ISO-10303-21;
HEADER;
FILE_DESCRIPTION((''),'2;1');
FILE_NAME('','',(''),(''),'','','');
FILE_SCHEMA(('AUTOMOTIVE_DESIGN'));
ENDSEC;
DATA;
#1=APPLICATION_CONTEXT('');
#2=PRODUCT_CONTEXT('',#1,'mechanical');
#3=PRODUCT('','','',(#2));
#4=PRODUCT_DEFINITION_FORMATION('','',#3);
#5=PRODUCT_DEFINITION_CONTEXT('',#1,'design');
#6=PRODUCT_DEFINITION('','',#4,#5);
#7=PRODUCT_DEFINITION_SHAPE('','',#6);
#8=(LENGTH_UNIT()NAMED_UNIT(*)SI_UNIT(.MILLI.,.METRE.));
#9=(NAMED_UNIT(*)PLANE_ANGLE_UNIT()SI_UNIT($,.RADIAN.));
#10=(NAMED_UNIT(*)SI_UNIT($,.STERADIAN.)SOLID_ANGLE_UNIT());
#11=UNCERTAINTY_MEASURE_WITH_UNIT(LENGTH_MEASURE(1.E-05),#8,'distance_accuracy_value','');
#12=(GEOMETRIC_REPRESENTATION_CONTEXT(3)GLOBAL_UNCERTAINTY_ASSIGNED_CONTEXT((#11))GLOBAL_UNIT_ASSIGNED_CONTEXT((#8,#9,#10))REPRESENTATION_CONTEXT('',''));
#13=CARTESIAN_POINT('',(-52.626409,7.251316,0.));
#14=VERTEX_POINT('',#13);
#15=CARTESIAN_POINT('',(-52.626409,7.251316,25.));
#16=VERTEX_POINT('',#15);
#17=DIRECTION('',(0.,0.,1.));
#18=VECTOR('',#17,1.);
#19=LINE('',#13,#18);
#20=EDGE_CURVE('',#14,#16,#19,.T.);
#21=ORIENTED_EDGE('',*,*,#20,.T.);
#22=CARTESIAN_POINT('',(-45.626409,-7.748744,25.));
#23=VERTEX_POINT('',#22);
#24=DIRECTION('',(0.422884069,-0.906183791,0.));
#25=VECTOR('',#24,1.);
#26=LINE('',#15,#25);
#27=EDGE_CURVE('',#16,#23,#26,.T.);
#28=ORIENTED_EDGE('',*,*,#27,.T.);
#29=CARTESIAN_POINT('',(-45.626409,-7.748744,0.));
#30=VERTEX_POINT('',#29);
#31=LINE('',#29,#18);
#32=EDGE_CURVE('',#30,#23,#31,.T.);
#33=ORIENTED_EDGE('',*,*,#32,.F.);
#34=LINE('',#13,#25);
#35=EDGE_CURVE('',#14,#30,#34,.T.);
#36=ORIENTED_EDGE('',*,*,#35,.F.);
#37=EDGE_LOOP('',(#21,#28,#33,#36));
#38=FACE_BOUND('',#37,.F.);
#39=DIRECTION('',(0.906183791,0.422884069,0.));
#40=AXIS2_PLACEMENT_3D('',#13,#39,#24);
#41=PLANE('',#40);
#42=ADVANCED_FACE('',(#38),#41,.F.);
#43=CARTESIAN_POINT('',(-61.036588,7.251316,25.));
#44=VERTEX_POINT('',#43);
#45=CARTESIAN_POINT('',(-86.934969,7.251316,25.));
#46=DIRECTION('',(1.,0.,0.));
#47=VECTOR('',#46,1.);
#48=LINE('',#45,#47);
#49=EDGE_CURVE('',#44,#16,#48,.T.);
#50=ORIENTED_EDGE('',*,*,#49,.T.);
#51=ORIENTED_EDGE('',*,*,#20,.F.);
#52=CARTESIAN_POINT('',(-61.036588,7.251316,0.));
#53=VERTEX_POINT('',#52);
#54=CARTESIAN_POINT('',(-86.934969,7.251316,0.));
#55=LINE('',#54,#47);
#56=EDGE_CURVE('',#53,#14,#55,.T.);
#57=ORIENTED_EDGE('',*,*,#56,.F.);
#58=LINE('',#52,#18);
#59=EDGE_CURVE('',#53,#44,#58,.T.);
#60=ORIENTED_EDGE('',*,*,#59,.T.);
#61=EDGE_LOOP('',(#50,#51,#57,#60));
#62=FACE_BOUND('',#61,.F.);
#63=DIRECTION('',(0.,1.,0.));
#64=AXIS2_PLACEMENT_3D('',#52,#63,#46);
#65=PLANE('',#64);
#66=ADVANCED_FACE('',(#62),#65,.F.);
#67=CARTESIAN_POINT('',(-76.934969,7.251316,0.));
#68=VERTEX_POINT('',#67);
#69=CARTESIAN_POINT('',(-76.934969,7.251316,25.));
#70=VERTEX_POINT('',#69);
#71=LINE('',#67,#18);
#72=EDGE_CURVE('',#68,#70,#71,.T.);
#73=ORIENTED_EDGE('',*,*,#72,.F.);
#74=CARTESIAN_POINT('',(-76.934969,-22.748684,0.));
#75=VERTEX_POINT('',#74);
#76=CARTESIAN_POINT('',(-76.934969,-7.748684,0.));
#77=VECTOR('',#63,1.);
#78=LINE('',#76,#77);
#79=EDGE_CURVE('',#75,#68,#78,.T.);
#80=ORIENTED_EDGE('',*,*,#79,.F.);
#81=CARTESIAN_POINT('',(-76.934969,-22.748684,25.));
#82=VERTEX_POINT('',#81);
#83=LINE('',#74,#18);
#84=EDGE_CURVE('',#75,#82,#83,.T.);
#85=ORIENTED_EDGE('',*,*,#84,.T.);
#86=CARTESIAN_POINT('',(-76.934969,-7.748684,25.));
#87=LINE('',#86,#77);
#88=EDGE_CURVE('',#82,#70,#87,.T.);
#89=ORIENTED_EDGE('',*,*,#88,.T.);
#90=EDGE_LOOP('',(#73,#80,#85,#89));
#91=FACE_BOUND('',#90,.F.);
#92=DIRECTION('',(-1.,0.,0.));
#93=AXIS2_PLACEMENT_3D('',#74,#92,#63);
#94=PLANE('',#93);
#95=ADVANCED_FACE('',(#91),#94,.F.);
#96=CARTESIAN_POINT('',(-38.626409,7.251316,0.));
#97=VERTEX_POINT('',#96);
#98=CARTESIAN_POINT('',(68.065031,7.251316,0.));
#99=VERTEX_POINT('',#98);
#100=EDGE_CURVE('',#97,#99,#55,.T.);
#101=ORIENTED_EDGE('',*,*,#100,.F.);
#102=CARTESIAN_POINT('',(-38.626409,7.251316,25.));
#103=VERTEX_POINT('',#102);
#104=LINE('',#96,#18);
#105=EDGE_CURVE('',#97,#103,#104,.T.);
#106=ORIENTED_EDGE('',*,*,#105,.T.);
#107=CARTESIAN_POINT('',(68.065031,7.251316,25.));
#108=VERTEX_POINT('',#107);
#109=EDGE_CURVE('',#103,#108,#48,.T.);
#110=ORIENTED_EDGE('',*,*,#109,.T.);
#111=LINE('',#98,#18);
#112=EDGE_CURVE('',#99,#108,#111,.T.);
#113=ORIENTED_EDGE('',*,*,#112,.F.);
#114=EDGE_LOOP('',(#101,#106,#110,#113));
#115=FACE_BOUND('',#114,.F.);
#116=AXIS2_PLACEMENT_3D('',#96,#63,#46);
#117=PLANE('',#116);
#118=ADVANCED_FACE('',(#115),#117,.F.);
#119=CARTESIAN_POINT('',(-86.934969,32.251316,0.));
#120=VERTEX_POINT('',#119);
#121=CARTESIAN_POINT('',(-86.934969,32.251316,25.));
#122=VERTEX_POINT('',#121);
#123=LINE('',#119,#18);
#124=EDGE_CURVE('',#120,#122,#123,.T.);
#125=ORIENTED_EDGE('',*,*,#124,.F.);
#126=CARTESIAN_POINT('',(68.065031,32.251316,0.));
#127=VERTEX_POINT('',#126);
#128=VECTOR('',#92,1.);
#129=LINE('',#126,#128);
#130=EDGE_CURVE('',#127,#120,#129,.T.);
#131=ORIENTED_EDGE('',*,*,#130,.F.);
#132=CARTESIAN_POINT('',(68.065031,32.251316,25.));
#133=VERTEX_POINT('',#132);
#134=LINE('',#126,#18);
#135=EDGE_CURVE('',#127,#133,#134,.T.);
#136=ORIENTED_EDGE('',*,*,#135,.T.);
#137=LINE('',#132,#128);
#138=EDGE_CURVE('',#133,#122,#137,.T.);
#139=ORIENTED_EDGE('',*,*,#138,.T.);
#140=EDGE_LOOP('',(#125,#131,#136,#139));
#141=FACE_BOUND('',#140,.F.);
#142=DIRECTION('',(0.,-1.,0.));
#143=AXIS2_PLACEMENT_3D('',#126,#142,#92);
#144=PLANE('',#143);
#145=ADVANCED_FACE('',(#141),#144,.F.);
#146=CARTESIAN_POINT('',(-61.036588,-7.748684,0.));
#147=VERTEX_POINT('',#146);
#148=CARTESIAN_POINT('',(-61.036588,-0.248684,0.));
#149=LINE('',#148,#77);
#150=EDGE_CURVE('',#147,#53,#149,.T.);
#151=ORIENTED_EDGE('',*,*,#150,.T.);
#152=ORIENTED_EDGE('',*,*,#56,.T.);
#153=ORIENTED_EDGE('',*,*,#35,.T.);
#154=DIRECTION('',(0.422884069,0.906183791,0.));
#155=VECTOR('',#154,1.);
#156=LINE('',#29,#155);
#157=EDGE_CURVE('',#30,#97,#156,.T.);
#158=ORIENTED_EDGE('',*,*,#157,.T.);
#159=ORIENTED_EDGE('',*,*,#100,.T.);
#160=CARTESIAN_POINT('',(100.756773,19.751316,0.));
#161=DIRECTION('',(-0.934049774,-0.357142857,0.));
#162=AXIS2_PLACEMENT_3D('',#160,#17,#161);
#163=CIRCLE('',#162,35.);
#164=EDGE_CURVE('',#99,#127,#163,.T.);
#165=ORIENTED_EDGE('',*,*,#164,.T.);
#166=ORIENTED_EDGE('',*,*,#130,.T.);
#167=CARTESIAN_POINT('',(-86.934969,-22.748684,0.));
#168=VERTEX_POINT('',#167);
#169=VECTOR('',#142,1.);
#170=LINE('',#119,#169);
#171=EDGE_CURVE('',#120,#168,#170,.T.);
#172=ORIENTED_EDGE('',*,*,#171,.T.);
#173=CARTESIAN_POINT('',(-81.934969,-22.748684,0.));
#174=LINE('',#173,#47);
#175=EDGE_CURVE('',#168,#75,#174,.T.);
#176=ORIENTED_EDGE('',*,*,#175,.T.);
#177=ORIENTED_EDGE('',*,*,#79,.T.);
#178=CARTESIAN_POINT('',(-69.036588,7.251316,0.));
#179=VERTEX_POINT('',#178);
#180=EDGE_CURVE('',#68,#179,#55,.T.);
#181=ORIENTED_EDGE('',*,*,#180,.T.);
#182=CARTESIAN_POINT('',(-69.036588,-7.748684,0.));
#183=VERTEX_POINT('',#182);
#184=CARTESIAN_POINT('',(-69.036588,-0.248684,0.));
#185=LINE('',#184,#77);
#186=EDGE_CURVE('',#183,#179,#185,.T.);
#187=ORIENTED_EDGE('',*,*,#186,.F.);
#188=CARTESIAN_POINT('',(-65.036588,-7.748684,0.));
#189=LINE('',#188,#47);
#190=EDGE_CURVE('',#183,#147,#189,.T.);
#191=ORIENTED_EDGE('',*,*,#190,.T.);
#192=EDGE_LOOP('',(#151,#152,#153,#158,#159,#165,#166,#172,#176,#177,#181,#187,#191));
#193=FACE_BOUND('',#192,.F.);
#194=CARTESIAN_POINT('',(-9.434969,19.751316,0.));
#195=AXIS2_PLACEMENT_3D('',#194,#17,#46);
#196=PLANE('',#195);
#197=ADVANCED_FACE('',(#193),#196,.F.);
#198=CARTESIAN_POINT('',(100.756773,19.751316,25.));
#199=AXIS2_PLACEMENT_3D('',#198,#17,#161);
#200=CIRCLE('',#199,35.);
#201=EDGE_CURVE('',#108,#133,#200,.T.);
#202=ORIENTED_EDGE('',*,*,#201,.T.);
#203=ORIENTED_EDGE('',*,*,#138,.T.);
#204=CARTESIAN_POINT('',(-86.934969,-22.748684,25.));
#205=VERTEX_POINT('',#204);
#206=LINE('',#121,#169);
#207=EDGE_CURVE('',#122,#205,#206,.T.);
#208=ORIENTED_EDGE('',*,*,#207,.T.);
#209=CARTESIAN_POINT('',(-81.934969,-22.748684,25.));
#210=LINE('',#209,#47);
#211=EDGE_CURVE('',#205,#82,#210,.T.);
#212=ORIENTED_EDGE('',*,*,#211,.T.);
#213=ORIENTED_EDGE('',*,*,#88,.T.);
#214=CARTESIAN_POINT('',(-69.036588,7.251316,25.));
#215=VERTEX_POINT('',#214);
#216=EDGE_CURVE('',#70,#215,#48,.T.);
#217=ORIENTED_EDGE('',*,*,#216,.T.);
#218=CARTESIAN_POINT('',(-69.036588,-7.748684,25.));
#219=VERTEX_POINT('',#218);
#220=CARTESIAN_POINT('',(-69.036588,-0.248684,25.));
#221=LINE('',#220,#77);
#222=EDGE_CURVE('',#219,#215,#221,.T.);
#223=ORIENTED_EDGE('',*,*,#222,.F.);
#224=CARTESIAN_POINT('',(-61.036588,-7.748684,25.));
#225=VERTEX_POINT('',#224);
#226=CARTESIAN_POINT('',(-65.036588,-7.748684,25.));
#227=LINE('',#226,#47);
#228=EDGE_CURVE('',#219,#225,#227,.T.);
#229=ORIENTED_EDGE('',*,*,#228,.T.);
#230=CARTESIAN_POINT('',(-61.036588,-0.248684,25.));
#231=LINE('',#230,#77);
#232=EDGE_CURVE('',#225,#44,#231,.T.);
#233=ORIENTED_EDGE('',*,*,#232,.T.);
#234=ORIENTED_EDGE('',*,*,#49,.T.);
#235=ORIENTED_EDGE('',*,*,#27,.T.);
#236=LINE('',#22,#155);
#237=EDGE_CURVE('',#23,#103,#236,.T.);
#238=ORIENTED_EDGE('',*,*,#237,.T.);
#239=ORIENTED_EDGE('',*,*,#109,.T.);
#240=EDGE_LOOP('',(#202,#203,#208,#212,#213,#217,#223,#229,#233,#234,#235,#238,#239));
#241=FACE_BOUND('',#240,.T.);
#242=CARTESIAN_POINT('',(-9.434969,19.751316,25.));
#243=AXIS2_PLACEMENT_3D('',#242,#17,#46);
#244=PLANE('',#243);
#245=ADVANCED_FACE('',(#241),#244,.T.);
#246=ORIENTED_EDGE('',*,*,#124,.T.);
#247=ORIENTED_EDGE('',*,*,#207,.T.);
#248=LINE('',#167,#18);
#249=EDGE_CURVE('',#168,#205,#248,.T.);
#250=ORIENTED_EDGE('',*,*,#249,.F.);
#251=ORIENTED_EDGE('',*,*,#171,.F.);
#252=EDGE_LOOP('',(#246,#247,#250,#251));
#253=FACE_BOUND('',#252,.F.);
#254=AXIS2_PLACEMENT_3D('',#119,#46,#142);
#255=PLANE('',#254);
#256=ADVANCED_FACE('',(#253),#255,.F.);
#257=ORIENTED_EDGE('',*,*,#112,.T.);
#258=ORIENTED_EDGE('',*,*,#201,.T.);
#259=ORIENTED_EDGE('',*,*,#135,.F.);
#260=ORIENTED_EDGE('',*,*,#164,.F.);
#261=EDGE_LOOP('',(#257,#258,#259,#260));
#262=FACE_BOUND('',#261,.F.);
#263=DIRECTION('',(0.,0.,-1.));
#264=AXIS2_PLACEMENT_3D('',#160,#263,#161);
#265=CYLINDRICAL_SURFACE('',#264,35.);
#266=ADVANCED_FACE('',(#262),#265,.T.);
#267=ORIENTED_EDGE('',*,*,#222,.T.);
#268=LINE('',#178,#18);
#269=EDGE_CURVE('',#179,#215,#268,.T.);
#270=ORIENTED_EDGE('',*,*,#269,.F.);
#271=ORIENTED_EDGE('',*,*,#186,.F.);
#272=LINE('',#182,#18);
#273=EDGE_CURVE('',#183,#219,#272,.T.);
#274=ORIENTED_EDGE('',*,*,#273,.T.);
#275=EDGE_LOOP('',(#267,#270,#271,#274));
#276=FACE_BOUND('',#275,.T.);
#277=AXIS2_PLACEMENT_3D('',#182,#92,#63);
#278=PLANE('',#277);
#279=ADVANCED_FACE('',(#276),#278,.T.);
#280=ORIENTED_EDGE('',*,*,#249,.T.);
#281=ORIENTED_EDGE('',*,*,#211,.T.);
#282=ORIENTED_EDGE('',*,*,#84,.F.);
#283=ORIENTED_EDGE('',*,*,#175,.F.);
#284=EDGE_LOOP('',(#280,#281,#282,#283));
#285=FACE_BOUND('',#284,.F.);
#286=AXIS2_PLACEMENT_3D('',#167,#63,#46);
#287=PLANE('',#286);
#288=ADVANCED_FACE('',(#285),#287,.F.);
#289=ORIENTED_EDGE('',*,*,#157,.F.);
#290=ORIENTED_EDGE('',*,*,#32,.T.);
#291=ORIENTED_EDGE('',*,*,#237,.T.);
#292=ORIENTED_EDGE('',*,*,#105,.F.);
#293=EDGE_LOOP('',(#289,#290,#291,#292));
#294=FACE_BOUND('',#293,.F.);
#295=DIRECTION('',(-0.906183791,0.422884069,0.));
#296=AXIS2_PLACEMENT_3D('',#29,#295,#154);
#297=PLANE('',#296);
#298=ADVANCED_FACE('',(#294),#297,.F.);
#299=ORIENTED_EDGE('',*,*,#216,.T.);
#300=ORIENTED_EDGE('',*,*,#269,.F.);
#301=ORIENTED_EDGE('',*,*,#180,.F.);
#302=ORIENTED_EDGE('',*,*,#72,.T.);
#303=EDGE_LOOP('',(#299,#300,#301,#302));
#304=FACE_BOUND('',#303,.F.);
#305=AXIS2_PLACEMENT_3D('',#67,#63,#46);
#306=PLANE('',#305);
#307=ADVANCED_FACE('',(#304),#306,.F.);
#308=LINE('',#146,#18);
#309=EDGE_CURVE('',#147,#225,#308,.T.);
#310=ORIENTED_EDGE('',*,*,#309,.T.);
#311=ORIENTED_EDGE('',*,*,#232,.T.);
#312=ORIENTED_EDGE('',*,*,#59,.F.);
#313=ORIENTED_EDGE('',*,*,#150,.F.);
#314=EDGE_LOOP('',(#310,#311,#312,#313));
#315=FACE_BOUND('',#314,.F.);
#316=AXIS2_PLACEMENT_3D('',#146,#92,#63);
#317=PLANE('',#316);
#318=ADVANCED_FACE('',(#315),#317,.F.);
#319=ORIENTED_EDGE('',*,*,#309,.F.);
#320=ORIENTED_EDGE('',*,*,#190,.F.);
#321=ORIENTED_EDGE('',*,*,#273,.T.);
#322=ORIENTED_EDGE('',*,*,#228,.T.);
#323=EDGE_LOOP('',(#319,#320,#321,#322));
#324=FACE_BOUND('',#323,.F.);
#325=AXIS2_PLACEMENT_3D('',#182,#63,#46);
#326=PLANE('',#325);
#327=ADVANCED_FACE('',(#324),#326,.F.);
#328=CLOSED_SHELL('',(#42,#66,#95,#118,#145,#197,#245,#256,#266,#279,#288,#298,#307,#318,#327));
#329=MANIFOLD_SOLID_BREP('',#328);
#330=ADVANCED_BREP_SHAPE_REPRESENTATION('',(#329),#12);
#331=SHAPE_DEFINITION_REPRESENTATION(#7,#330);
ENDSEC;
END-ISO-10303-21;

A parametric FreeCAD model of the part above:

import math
import FreeCAD as App
import Part
import Sketcher

V = App.Vector
Q = App.Units.Quantity

doc = App.newDocument("Part")
body = doc.addObject("PartDesign::Body", "Body")

sketch1 = body.newObject("Sketcher::SketchObject", "Sketch")
sketch1.AttachmentSupport = (doc.getObject("XY_Plane"), [""])
sketch1.MapMode = "FlatFace"
sketch1.addGeometry(Part.LineSegment(V(68, 32, 0), V(-87, 32, 0)), False)
sketch1.addGeometry(Part.LineSegment(V(-87, 32, 0), V(-87, -23, 0)), False)
sketch1.addGeometry(Part.LineSegment(V(-87, -23, 0), V(-77, -23, 0)), False)
sketch1.addGeometry(Part.LineSegment(V(-77, -23, 0), V(-77, 7, 0)), False)
sketch1.addGeometry(Part.LineSegment(V(-77, 7, 0), V(-69, 7, 0)), False)
sketch1.addGeometry(Part.LineSegment(V(-69, 7, 0), V(-69, -8, 0)), False)
sketch1.addGeometry(Part.LineSegment(V(-69, -8, 0), V(-61, -8, 0)), False)
sketch1.addGeometry(Part.LineSegment(V(-61, -8, 0), V(-61, 7, 0)), False)
sketch1.addGeometry(Part.LineSegment(V(-61, 7, 0), V(-53, 7, 0)), False)
sketch1.addGeometry(Part.LineSegment(V(-53, 7, 0), V(-46, -8, 0)), False)
sketch1.addGeometry(Part.LineSegment(V(-46, -8, 0), V(-39, 7, 0)), False)
sketch1.addGeometry(Part.LineSegment(V(-39, 7, 0), V(68, 7, 0)), False)
sketch1.addGeometry(Part.ArcOfCircle(Part.Circle(V(101, 20, 0), V(0, 0, 1), 35), math.radians(-159), math.radians(159)), False)
sketch1.addConstraint(Sketcher.Constraint("Coincident", 0, 2, 1, 1))
sketch1.addConstraint(Sketcher.Constraint("Coincident", 1, 2, 2, 1))
sketch1.addConstraint(Sketcher.Constraint("Coincident", 2, 2, 3, 1))
sketch1.addConstraint(Sketcher.Constraint("Coincident", 3, 2, 4, 1))
sketch1.addConstraint(Sketcher.Constraint("Coincident", 4, 2, 5, 1))
sketch1.addConstraint(Sketcher.Constraint("Coincident", 5, 2, 6, 1))
sketch1.addConstraint(Sketcher.Constraint("Coincident", 6, 2, 7, 1))
sketch1.addConstraint(Sketcher.Constraint("Coincident", 7, 2, 8, 1))
sketch1.addConstraint(Sketcher.Constraint("Coincident", 8, 2, 9, 1))
sketch1.addConstraint(Sketcher.Constraint("Coincident", 9, 2, 10, 1))
sketch1.addConstraint(Sketcher.Constraint("Coincident", 10, 2, 11, 1))
sketch1.addConstraint(Sketcher.Constraint("Coincident", 11, 2, 12, 1))
sketch1.addConstraint(Sketcher.Constraint("Coincident", 12, 2, 0, 1))
sketch1.addConstraint(Sketcher.Constraint("Horizontal", 0))
sketch1.addConstraint(Sketcher.Constraint("Vertical", 1))
sketch1.addConstraint(Sketcher.Constraint("Horizontal", 2))
sketch1.addConstraint(Sketcher.Constraint("Vertical", 3))
sketch1.addConstraint(Sketcher.Constraint("Horizontal", 4))
sketch1.addConstraint(Sketcher.Constraint("Vertical", 5))
sketch1.addConstraint(Sketcher.Constraint("Horizontal", 6))
sketch1.addConstraint(Sketcher.Constraint("Vertical", 7))
sketch1.addConstraint(Sketcher.Constraint("Horizontal", 8))
sketch1.addConstraint(Sketcher.Constraint("Horizontal", 11))
sketch1.addConstraint(Sketcher.Constraint("Horizontal", 4, 2, 7, 2))
sketch1.addConstraint(Sketcher.Constraint("Horizontal", 8, 2, 10, 2))
sketch1.addConstraint(Sketcher.Constraint("Vertical", 11, 2, 12, 2))
sketch1.addConstraint(Sketcher.Constraint("Equal", 9, 10))
sketch1.addConstraint(Sketcher.Constraint("Radius", 12, Q("35 mm")))
sketch1.addConstraint(Sketcher.Constraint("DistanceX", 0, 2, 0, 1, Q("155 mm")))
sketch1.addConstraint(Sketcher.Constraint("DistanceX", 2, 1, 2, 2, Q("10 mm")))
sketch1.addConstraint(Sketcher.Constraint("DistanceX", 6, 1, 6, 2, Q("8 mm")))
sketch1.addConstraint(Sketcher.Constraint("DistanceY", 1, 2, 1, 1, Q("55 mm")))
sketch1.addConstraint(Sketcher.Constraint("DistanceY", 3, 1, 3, 2, Q("30 mm")))
sketch1.addConstraint(Sketcher.Constraint("DistanceY", 5, 2, 5, 1, Q("15 mm")))
sketch1.addConstraint(Sketcher.Constraint("DistanceX", 8, 2, 9, 2, Q("7 mm")))
sketch1.addConstraint(Sketcher.Constraint("Distance", 9, Q("16.553 mm")))
sketch1.addConstraint(Sketcher.Constraint("DistanceX", 4, 1, 4, 2, Q("7.898381 mm")))
sketch1.addConstraint(Sketcher.Constraint("DistanceX", 8, 1, 8, 2, Q("8.410179 mm")))
sketch1.addConstraint(Sketcher.Constraint("DistanceX", 0, 2, -1, 1, Q("86.934969 mm")))
sketch1.addConstraint(Sketcher.Constraint("DistanceY", -1, 1, 12, 3, Q("19.751316 mm")))
pad1 = body.newObject("PartDesign::Pad", "Pad")
pad1.Profile = sketch1
pad1.Length = 25

doc.recompute()
